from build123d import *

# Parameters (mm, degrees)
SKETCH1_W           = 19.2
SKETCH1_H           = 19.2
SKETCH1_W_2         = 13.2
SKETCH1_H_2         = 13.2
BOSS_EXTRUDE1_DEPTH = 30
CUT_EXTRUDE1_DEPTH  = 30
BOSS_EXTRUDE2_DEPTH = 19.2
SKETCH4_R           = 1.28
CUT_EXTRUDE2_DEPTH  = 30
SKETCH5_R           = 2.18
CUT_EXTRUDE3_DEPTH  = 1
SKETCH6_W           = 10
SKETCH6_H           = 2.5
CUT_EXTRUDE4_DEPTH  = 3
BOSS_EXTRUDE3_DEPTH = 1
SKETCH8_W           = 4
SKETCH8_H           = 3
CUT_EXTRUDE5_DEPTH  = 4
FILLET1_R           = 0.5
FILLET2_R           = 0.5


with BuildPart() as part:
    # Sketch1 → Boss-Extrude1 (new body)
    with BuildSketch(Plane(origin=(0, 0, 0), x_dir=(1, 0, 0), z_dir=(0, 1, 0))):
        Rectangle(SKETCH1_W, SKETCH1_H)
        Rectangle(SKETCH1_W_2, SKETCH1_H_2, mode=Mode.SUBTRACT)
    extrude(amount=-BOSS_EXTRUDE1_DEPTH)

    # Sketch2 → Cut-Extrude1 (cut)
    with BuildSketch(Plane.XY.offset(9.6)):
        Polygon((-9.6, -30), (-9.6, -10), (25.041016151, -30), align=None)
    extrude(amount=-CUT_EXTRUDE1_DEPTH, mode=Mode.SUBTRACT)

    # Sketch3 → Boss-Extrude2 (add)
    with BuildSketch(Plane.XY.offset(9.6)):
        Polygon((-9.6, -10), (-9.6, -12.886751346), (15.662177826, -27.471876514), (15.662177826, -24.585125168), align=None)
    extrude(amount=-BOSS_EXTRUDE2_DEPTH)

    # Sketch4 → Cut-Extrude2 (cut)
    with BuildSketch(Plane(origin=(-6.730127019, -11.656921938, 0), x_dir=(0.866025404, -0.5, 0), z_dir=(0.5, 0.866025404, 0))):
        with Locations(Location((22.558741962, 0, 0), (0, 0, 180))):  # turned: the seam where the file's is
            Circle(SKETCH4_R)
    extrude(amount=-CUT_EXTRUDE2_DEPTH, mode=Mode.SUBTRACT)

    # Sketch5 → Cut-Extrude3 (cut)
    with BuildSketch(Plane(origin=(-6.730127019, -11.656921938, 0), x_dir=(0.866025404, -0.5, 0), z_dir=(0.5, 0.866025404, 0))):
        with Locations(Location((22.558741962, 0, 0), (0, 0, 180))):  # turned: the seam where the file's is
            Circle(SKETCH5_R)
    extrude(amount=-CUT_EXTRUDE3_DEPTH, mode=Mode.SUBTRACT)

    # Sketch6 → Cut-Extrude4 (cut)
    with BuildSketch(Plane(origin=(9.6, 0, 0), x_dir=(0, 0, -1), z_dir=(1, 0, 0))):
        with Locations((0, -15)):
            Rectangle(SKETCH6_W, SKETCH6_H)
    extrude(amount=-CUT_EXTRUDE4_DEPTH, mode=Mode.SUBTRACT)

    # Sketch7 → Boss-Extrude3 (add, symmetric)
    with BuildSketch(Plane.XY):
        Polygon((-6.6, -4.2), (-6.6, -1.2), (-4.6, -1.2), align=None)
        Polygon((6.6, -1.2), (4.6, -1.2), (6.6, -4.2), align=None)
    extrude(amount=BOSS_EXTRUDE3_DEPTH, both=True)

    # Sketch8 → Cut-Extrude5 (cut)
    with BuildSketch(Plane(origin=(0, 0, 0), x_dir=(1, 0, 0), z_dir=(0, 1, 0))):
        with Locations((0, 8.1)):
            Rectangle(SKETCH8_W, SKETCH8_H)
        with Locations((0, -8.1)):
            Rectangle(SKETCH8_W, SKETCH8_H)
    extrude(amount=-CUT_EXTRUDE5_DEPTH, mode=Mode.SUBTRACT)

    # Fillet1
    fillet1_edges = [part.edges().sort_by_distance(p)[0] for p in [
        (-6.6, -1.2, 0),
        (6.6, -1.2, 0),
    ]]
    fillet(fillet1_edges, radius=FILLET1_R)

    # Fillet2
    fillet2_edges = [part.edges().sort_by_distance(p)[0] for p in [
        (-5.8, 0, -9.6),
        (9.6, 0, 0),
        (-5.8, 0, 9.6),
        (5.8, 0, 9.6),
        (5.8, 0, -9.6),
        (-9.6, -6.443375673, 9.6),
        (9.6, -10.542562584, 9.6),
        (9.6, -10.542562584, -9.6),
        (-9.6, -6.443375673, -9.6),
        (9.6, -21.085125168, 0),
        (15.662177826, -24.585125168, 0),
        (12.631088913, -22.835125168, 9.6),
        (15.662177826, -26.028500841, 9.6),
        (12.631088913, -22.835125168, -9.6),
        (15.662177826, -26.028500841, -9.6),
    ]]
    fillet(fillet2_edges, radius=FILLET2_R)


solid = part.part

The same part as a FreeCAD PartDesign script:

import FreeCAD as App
import Part
import Sketcher

V = App.Vector
Q = App.Units.Quantity


def edges_at(feature, points):
    """Names of the edges that pass closest to the given points."""
    edges = feature.Shape.Edges
    near = lambda p: min(range(len(edges)), key=lambda i: edges[i].distToShape(Part.Vertex(*p))[0])
    return sorted({f"Edge{near(p) + 1}" for p in points})


def add_polygon(sketch, points):
    """Adds a closed chain of lines whose ends are joined by coincident constraints."""
    first, n = sketch.GeometryCount, len(points)
    for a, b in zip(points, points[1:] + points[:1]):
        sketch.addGeometry(Part.LineSegment(App.Vector(*a, 0), App.Vector(*b, 0)), False)
    for i in range(n):
        sketch.addConstraint(Sketcher.Constraint("Coincident", first + i, 2, first + (i + 1) % n, 1))

doc = App.newDocument("Part")
body = doc.addObject("PartDesign::Body", "Body")

sketch1 = body.newObject("Sketcher::SketchObject", "Sketch")
sketch1.AttachmentSupport = (doc.getObject("XZ_Plane"), [""])
sketch1.MapMode = "FlatFace"
add_polygon(sketch1, [(-10, -10), (-10, 10), (10, 10), (10, -10)])
add_polygon(sketch1, [(7, 7), (-7, 7), (-7, -7), (7, -7)])
sketch1.addConstraint([
    Sketcher.Constraint("Vertical", 0),
    Sketcher.Constraint("Horizontal", 1),
    Sketcher.Constraint("Vertical", 2),
    Sketcher.Constraint("Horizontal", 3),
    Sketcher.Constraint("Horizontal", 4),
    Sketcher.Constraint("Vertical", 5),
    Sketcher.Constraint("Horizontal", 6),
    Sketcher.Constraint("Vertical", 7),
    Sketcher.Constraint("Symmetric", 0, 2, 2, 2, -1, 1),
    Sketcher.Constraint("Symmetric", 4, 2, 6, 2, -1, 1),
    Sketcher.Constraint("Equal", 3, 0),
    Sketcher.Constraint("Equal", 6, 5),
    Sketcher.Constraint("DistanceX", 1, 1, 1, 2, Q("19.2 mm")),
    Sketcher.Constraint("DistanceX", 4, 2, 4, 1, Q("13.2 mm")),
])
pad1 = body.newObject("PartDesign::Pad", "Pad")
pad1.Profile = sketch1
pad1.Length = 30

sketch2 = body.newObject("Sketcher::SketchObject", "Sketch001")
sketch2.AttachmentSupport = (doc.getObject("XY_Plane"), [""])
sketch2.MapMode = "FlatFace"
sketch2.AttachmentOffset = App.Placement(V(0, 0, 9.6), App.Rotation())
add_polygon(sketch2, [(-10, -10), (-10, -30), (25, -30)])
sketch2.addConstraint([
    Sketcher.Constraint("Vertical", 0),
    Sketcher.Constraint("Horizontal", 1),
    Sketcher.Constraint("DistanceY", 0, 2, 0, 1, Q("20 mm")),
    Sketcher.Constraint("Angle", 2, Q("150 deg")),
    Sketcher.Constraint("DistanceY", 0, 2, -1, 1, Q("30 mm")),
    Sketcher.Constraint("DistanceX", 0, 2, -1, 1, Q("9.6 mm")),
])
pocket1 = body.newObject("PartDesign::Pocket", "Pocket")
pocket1.Profile = sketch2
pocket1.Length = 30

sketch3 = body.newObject("Sketcher::SketchObject", "Sketch002")
sketch3.AttachmentSupport = (doc.getObject("XY_Plane"), [""])
sketch3.MapMode = "FlatFace"
sketch3.AttachmentOffset = App.Placement(V(0, 0, 9.6), App.Rotation())
add_polygon(sketch3, [(-9.6, -10), (-9.6, -12.9), (15.7, -27.5), (15.7, -24.6)])
sketch3.addConstraint([
    Sketcher.Constraint("Vertical", 0),
    Sketcher.Constraint("Vertical", 2),
    Sketcher.Constraint("Parallel", 1, 3),
    Sketcher.Constraint("Angle", 1, Q("-30 deg")),
    Sketcher.Constraint("DistanceY", 3, 2, -1, 1, Q("10 mm")),
    Sketcher.Constraint("DistanceX", 0, 2, -1, 1, Q("9.6 mm")),
    Sketcher.Constraint("DistanceY", 0, 2, 0, 1, Q("2.886751 mm")),
    Sketcher.Constraint("Distance", 1, Q("29.17025 mm")),
])
pad2 = body.newObject("PartDesign::Pad", "Pad001")
pad2.Profile = sketch3
pad2.Length = 19.2
pad2.Reversed = True

sketch4 = body.newObject("Sketcher::SketchObject", "Sketch003")
sketch4.Placement = App.Placement(V(-6.730127, -11.656922, 0), App.Rotation(V(0.866025404, -0.5, 0), V(0, 0, -1), V(0.5, 0.866025404, 0), "ZXY"))
sketch4.addGeometry(Part.Circle(V(22.6, 0, 0), V(0, 0, 1), 1.3), False)
sketch4.addConstraint([
    Sketcher.Constraint("PointOnObject", 0, 3, -1),
    Sketcher.Constraint("Diameter", 0, Q("2.56 mm")),
    Sketcher.Constraint("DistanceX", -1, 1, 0, 3, Q("22.558742 mm")),
])
pocket2 = body.newObject("PartDesign::Pocket", "Pocket001")
pocket2.Profile = sketch4
pocket2.Length = 30

sketch5 = body.newObject("Sketcher::SketchObject", "Sketch004")
sketch5.Placement = App.Placement(V(-6.730127, -11.656922, 0), App.Rotation(V(0.866025404, -0.5, 0), V(0, 0, -1), V(0.5, 0.866025404, 0), "ZXY"))
sketch5.addGeometry(Part.Circle(V(22.6, 0, 0), V(0, 0, 1), 2.2), False)
sketch5.addConstraint([
    Sketcher.Constraint("PointOnObject", 0, 3, -1),
    Sketcher.Constraint("Diameter", 0, Q("4.36 mm")),
    Sketcher.Constraint("DistanceX", -1, 1, 0, 3, Q("22.558742 mm")),
])
pocket3 = body.newObject("PartDesign::Pocket", "Pocket002")
pocket3.Profile = sketch5
pocket3.Length = 1

sketch6 = body.newObject("Sketcher::SketchObject", "Sketch005")
sketch6.AttachmentSupport = (doc.getObject("YZ_Plane"), [""])
sketch6.MapMode = "FlatFace"
sketch6.AttachmentOffset = App.Placement(V(0, 0, 9.6), App.Rotation())
add_polygon(sketch6, [(-13.8, 5), (-16.2, 5), (-16.2, -5), (-13.8, -5)])
sketch6.addConstraint([
    Sketcher.Constraint("Horizontal", 0),
    Sketcher.Constraint("Vertical", 1),
    Sketcher.Constraint("Horizontal", 2),
    Sketcher.Constraint("Vertical", 3),
    Sketcher.Constraint("DistanceY", 1, 2, 1, 1, Q("10 mm")),
    Sketcher.Constraint("DistanceX", 0, 2, 0, 1, Q("2.5 mm")),
    Sketcher.Constraint("DistanceY", -1, 1, 0, 2, Q("5 mm")),
    Sketcher.Constraint("DistanceX", 0, 2, -1, 1, Q("16.25 mm")),
])
pocket4 = body.newObject("PartDesign::Pocket", "Pocket003")
pocket4.Profile = sketch6
pocket4.Length = 3

sketch7 = body.newObject("Sketcher::SketchObject", "Sketch006")
sketch7.AttachmentSupport = (doc.getObject("XY_Plane"), [""])
sketch7.MapMode = "FlatFace"
add_polygon(sketch7, [(-6.6, -1.2), (-6.6, -4.2), (-4.6, -1.2)])
add_polygon(sketch7, [(6.6, -1.2), (4.6, -1.2), (6.6, -4.2)])
sketch7.addConstraint([
    Sketcher.Constraint("Vertical", 0),
    Sketcher.Constraint("Horizontal", 2),
    Sketcher.Constraint("Horizontal", 3),
    Sketcher.Constraint("Vertical", 5),
    Sketcher.Constraint("Symmetric", 1, 2, 3, 2, -2),
    Sketcher.Constraint("Symmetric", 0, 2, 4, 2, -2),
    Sketcher.Constraint("DistanceX", 2, 2, 2, 1, Q("2 mm")),
    Sketcher.Constraint("DistanceY", 0, 2, 0, 1, Q("3 mm")),
    Sketcher.Constraint("DistanceX", 0, 2, -1, 1, Q("6.6 mm")),
    Sketcher.Constraint("DistanceY", 0, 2, -1, 1, Q("4.2 mm")),
])
pad3 = body.newObject("PartDesign::Pad", "Pad002")
pad3.Profile = sketch7
pad3.Length = 2
pad3.Midplane = True

sketch8 = body.newObject("Sketcher::SketchObject", "Sketch007")
sketch8.AttachmentSupport = (doc.getObject("XZ_Plane"), [""])
sketch8.MapMode = "FlatFace"
add_polygon(sketch8, [(-2, -9.6), (-2, -6.6), (2, -6.6), (2, -9.6)])
add_polygon(sketch8, [(-2, 6.6), (-2, 9.6), (2, 9.6), (2, 6.6)])
sketch8.addConstraint([
    Sketcher.Constraint("Vertical", 0),
    Sketcher.Constraint("Horizontal", 1),
    Sketcher.Constraint("Vertical", 2),
    Sketcher.Constraint("Horizontal", 3),
    Sketcher.Constraint("Vertical", 4),
    Sketcher.Constraint("Horizontal", 5),
    Sketcher.Constraint("Vertical", 6),
    Sketcher.Constraint("Horizontal", 7),
    Sketcher.Constraint("Symmetric", 2, 2, 4, 2, -1, 1),
    Sketcher.Constraint("Symmetric", 0, 2, 6, 2, -1, 1),
    Sketcher.Constraint("Vertical", 3, 2, 4, 2),
    Sketcher.Constraint("DistanceX", 1, 1, 1, 2, Q("4 mm")),
    Sketcher.Constraint("DistanceY", 0, 1, 0, 2, Q("3 mm")),
    Sketcher.Constraint("DistanceY", 0, 2, -1, 1, Q("6.6 mm")),
])
pocket5 = body.newObject("PartDesign::Pocket", "Pocket004")
pocket5.Profile = sketch8
pocket5.Length = 4
pocket5.Reversed = True
doc.recompute()

fillet = body.newObject("PartDesign::Fillet", "Fillet")
fillet.Base = (pocket5, edges_at(pocket5, [(-6.6, -1.2, 0), (6.6, -1.2, 0)]))
fillet.Radius = 0.5
doc.recompute()

fillet2 = body.newObject("PartDesign::Fillet", "Fillet001")
fillet2.Base = (fillet, edges_at(fillet, [
    (-5.8, 0, -9.6),
    (9.6, 0, 0),
    (-5.8, 0, 9.6),
    (5.8, 0, 9.6),
    (5.8, 0, -9.6),
    (-9.6, -6.443, 9.6),
    (9.6, -10.543, 9.6),
    (9.6, -10.543, -9.6),
    (-9.6, -6.443, -9.6),
    (9.6, -21.085, 0),
    (15.662, -24.585, 0),
    (12.631, -22.835, 9.6),
    (15.662, -26.029, 9.6),
    (12.631, -22.835, -9.6),
    (15.662, -26.029, -9.6),
]))
fillet2.Radius = 0.5

doc.recompute()
